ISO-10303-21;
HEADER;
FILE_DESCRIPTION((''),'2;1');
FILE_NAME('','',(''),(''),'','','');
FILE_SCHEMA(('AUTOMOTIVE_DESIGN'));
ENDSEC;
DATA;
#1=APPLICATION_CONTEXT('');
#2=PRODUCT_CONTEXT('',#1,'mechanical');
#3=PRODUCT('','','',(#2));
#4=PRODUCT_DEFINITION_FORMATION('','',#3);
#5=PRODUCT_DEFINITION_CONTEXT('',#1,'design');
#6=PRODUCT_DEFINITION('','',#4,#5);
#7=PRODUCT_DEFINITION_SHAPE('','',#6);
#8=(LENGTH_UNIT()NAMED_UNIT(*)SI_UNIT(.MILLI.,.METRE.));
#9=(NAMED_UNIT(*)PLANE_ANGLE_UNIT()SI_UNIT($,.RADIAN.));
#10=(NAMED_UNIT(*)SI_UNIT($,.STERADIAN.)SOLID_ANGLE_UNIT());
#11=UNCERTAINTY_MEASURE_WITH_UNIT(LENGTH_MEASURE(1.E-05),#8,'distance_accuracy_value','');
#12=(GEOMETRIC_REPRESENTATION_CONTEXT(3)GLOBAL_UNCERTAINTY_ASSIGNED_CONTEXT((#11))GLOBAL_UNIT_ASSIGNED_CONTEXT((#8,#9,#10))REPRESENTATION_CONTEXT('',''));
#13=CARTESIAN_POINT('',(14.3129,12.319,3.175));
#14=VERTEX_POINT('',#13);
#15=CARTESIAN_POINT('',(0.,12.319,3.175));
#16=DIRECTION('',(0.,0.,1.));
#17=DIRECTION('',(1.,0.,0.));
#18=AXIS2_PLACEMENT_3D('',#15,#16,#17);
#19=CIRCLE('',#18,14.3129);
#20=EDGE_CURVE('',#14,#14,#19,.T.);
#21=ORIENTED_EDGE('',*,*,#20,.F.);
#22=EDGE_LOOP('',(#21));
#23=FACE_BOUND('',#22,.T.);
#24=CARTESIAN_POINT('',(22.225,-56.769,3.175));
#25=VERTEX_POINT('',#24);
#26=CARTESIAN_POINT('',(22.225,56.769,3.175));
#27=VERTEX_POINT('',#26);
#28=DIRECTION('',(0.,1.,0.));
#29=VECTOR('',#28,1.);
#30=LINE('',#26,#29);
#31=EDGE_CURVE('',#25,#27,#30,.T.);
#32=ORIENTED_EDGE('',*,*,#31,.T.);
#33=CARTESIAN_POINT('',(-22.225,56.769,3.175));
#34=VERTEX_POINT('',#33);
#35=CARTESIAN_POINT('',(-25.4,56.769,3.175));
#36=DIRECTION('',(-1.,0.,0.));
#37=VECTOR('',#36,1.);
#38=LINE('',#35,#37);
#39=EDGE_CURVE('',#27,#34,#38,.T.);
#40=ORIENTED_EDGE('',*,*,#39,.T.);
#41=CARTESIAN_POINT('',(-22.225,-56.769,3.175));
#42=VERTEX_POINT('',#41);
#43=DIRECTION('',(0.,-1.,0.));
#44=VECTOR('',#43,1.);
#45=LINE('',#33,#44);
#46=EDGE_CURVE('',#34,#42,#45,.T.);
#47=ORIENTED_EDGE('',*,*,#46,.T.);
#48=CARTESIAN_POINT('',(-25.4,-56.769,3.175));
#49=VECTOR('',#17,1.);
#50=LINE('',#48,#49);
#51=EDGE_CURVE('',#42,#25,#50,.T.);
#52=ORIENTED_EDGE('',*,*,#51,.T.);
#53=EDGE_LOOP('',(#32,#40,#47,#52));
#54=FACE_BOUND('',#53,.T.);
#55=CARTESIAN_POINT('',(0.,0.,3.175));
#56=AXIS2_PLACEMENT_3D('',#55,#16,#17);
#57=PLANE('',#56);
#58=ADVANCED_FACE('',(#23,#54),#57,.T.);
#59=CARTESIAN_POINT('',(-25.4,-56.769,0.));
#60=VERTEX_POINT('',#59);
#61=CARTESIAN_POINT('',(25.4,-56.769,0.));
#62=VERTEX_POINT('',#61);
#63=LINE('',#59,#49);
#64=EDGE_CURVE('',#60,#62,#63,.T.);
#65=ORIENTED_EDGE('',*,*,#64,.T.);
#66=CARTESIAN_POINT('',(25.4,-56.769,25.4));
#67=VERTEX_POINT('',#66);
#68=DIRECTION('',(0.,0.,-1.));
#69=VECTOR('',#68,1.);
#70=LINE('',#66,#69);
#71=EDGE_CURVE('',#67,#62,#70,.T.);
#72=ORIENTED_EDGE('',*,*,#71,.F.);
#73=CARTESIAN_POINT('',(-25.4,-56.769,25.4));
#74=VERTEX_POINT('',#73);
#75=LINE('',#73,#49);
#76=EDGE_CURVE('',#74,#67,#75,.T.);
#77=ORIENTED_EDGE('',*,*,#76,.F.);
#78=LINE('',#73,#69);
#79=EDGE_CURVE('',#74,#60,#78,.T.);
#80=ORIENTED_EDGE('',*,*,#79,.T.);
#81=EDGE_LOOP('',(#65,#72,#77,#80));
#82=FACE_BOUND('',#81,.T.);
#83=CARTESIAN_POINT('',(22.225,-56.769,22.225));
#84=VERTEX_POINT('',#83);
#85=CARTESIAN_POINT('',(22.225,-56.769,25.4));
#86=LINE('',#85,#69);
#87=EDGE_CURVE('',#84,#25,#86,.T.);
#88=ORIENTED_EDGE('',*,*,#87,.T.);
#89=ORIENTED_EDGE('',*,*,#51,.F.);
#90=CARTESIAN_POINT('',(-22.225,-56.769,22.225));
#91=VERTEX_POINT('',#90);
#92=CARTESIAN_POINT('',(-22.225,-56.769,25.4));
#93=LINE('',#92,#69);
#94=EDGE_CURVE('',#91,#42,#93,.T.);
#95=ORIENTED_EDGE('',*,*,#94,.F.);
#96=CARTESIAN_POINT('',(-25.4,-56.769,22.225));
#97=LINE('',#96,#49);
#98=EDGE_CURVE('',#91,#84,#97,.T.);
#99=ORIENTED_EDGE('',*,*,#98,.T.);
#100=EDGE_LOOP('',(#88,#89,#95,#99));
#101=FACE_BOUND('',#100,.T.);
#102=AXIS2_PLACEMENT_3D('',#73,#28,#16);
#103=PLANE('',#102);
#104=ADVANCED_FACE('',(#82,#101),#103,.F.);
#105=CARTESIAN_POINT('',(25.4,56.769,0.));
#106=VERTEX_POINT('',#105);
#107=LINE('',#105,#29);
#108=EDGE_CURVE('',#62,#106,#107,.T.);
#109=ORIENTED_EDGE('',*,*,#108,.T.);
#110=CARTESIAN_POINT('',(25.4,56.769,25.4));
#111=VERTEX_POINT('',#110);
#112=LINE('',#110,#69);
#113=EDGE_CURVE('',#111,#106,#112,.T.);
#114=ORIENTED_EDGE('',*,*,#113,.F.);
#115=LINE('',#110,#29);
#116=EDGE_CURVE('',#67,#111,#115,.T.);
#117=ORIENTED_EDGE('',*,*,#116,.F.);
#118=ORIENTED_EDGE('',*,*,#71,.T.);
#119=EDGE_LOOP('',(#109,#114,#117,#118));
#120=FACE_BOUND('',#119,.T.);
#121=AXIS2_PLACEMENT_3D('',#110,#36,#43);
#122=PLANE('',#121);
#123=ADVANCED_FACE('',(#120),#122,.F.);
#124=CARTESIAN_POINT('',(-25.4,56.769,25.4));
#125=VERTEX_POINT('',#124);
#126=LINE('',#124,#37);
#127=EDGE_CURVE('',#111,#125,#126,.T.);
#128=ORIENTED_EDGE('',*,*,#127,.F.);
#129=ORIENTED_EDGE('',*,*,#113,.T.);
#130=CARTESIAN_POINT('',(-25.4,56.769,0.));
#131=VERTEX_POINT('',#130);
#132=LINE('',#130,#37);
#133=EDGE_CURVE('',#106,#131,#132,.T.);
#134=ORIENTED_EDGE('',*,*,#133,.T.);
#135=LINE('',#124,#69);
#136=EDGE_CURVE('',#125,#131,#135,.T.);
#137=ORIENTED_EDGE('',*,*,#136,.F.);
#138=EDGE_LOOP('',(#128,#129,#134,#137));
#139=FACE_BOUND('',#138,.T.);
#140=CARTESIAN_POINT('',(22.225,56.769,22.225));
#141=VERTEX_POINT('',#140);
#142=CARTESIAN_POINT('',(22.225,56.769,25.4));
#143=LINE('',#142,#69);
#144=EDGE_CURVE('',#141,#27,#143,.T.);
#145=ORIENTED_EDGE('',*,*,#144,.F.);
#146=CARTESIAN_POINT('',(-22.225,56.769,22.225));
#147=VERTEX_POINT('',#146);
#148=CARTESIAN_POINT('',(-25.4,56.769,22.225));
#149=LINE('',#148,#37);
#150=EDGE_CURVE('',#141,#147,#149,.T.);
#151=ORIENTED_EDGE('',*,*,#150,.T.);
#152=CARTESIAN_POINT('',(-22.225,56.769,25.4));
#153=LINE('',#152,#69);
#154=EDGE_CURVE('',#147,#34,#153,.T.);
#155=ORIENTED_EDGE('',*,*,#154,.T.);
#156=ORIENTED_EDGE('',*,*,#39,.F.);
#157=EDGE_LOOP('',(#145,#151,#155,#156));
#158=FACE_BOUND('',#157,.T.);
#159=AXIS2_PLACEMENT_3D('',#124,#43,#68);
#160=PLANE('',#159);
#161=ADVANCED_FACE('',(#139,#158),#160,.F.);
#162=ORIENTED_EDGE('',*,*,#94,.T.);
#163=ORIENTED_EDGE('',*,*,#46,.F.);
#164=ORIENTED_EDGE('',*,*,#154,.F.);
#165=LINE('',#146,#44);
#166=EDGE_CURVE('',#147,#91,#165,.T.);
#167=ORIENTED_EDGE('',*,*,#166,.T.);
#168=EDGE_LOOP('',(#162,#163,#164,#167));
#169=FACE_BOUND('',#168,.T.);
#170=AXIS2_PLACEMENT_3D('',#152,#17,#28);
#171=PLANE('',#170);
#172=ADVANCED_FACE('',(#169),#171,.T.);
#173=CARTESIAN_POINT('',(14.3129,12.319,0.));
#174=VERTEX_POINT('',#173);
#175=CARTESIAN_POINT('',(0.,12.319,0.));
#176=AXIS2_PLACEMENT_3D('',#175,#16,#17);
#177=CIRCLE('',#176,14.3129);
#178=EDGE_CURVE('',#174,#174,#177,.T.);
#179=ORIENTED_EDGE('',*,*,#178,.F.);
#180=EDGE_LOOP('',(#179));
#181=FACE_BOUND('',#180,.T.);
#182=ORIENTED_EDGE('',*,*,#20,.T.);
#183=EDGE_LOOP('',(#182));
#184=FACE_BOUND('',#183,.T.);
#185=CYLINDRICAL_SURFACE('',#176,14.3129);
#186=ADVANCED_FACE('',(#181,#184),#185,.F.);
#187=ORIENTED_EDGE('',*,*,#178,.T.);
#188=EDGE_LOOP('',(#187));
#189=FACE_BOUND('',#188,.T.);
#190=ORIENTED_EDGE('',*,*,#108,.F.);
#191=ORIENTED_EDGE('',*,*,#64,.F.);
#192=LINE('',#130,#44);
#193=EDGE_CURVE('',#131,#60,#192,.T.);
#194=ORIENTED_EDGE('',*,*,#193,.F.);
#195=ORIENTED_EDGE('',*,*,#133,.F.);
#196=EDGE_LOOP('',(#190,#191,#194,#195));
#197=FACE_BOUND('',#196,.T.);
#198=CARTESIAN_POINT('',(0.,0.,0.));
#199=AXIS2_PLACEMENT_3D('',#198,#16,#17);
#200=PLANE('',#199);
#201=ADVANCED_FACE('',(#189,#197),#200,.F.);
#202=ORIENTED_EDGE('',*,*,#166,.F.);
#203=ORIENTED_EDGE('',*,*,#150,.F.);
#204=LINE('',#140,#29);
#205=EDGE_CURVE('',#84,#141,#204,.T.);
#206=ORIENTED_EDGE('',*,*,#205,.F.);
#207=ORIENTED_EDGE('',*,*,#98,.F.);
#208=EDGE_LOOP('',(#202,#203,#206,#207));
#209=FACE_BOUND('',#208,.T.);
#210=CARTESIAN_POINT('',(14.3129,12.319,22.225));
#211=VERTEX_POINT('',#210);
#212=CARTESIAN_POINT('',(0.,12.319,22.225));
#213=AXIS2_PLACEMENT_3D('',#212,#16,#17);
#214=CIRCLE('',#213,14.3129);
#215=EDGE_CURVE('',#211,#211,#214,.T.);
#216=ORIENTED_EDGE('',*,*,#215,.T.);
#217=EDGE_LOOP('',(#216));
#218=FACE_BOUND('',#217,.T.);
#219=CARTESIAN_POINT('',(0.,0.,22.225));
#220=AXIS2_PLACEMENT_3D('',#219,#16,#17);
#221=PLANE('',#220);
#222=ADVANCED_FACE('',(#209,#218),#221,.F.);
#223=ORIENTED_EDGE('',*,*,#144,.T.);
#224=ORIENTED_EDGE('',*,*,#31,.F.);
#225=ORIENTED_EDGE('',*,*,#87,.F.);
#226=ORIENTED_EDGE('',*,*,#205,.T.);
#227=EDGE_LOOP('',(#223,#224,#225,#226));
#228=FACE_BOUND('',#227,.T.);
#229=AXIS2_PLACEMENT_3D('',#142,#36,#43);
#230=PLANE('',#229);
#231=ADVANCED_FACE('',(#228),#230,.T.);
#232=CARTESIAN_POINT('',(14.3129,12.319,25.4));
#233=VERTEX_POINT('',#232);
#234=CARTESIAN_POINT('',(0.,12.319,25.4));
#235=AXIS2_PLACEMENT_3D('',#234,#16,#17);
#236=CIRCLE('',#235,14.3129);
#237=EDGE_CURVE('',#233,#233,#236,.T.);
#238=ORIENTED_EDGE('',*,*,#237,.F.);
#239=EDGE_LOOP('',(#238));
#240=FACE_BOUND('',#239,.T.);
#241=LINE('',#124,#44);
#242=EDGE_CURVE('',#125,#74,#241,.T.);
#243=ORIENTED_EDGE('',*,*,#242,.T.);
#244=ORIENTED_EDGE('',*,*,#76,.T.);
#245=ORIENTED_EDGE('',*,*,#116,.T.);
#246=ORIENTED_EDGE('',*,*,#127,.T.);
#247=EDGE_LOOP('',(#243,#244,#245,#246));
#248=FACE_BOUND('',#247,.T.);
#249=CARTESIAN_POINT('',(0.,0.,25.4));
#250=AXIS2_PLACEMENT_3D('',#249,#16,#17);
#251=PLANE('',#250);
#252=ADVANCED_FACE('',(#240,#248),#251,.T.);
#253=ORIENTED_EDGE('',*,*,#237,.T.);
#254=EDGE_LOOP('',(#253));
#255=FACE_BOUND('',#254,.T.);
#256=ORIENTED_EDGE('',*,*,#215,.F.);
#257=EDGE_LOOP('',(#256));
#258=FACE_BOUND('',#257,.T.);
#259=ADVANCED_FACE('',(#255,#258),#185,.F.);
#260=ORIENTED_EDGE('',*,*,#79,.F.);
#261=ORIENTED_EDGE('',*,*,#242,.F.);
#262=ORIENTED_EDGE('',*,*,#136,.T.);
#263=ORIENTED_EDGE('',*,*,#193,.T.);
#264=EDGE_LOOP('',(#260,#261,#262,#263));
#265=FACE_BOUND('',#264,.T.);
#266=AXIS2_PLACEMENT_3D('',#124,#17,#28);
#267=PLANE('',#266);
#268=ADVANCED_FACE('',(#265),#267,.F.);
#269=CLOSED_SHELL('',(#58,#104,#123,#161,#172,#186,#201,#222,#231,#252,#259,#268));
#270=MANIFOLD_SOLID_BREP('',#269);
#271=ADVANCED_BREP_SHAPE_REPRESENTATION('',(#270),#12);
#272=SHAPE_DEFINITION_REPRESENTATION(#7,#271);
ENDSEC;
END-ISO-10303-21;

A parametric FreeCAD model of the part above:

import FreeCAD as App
import Part
import Sketcher
from FreeCAD import Vector
Q = App.Units.Quantity


def faces_at(feature, points):
    """Names of the faces that lie closest to the given points."""
    faces = feature.Shape.Faces
    near = lambda p: min(range(len(faces)), key=lambda i: faces[i].distToShape(Part.Vertex(*p))[0])
    return sorted({f"Face{near(p) + 1}" for p in points})

doc = App.newDocument("Part")
body = doc.addObject("PartDesign::Body", "Body")

# Sketch on XY plane
sketch1 = body.newObject("Sketcher::SketchObject", "Sketch")
sketch1.AttachmentSupport = (doc.getObject("XY_Plane"), [""])
sketch1.MapMode = "FlatFace"
sketch1.addGeometry([
    Part.LineSegment(Vector(-25, 57, 0), Vector(-25, -57, 0)),
    Part.LineSegment(Vector(-25, -57, 0), Vector(25, -57, 0)),
    Part.LineSegment(Vector(25, -57, 0), Vector(25, 57, 0)),
    Part.LineSegment(Vector(25, 57, 0), Vector(-25, 57, 0)),
], False)
sketch1.addConstraint([
    Sketcher.Constraint("Coincident", 0, 2, 1, 1),
    Sketcher.Constraint("Coincident", 1, 2, 2, 1),
    Sketcher.Constraint("Coincident", 2, 2, 3, 1),
    Sketcher.Constraint("Coincident", 3, 2, 0, 1),
    Sketcher.Constraint("Vertical", 0),
    Sketcher.Constraint("Horizontal", 1),
    Sketcher.Constraint("Vertical", 2),
    Sketcher.Constraint("Horizontal", 3),
    Sketcher.Constraint("Symmetric", 0, 2, 2, 2, -1, 1),
    Sketcher.Constraint("DistanceX", 1, 1, 1, 2, Q("2 in")),
    Sketcher.Constraint("DistanceY", 0, 2, 0, 1, Q("4.47 in")),
])
pad1 = body.newObject("PartDesign::Pad", "Pad")
pad1.Profile = sketch1
pad1.Length = Q("1 in")
doc.recompute()

thickness = body.newObject("PartDesign::Thickness", "Thickness")
thickness.Base = (pad1, faces_at(pad1, [(0, -56.769, 12.7), (0, 56.769, 12.7)]))
thickness.Value = Q("0.125 in")
thickness.Reversed = True
thickness.Join = "Intersection"

# Sketch on XY plane
sketch2 = body.newObject("Sketcher::SketchObject", "Sketch001")
sketch2.AttachmentSupport = (doc.getObject("XY_Plane"), [""])
sketch2.MapMode = "FlatFace"
sketch2.AttachmentOffset = App.Placement(Vector(0, 0, 1 * 25.4), App.Rotation())
sketch2.addGeometry(Part.Circle(Vector(0, 12, 0), Vector(0, 0, 1), 14), False)
sketch2.addConstraint([
    Sketcher.Constraint("PointOnObject", 0, 3, -2),
    Sketcher.Constraint("Diameter", 0, Q("1.127 in")),
    Sketcher.Constraint("DistanceY", -1, 1, 0, 3, Q("0.485 in")),
])
pocket1 = body.newObject("PartDesign::Pocket", "Pocket")
pocket1.Profile = sketch2
pocket1.Length = Q("1 in")

doc.recompute()
